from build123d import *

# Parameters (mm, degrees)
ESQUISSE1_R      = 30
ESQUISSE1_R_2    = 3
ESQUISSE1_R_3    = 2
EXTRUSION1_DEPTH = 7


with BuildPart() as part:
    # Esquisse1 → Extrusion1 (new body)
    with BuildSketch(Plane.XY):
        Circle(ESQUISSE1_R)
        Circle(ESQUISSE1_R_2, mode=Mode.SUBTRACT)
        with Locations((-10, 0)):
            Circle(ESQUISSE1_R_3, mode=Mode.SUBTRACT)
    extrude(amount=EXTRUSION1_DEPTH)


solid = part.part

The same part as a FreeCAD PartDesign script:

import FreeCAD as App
import Part
import Sketcher

doc = App.newDocument("Part")
body = doc.addObject("PartDesign::Body", "Body")

# Sketch on XY plane
sketch1 = body.newObject("Sketcher::SketchObject", "Sketch")
sketch1.AttachmentSupport = (doc.getObject("XY_Plane"), [""])
sketch1.MapMode = "FlatFace"
sketch1.addGeometry([
    Part.Circle(App.Vector(0, 0, 0), App.Vector(0, 0, 1), 30),
    Part.Circle(App.Vector(-10, 0, 0), App.Vector(0, 0, 1), 2),
    Part.Circle(App.Vector(0, 0, 0), App.Vector(0, 0, 1), 3),
], False)
sketch1.addConstraint([
    Sketcher.Constraint("Coincident", 0, 3, -1, 1),
    Sketcher.Constraint("Coincident", 2, 3, -1, 1),
    Sketcher.Constraint("PointOnObject", 1, 3, -1),
    Sketcher.Constraint("Diameter", 0, 60.0),
    Sketcher.Constraint("Diameter", 1, 4.0),
    Sketcher.Constraint("Diameter", 2, 6.0),
    Sketcher.Constraint("DistanceX", 1, 3, -1, 1, 10.0),
])
pad1 = body.newObject("PartDesign::Pad", "Pad")
pad1.Profile = sketch1
pad1.Length = 7

doc.recompute()
